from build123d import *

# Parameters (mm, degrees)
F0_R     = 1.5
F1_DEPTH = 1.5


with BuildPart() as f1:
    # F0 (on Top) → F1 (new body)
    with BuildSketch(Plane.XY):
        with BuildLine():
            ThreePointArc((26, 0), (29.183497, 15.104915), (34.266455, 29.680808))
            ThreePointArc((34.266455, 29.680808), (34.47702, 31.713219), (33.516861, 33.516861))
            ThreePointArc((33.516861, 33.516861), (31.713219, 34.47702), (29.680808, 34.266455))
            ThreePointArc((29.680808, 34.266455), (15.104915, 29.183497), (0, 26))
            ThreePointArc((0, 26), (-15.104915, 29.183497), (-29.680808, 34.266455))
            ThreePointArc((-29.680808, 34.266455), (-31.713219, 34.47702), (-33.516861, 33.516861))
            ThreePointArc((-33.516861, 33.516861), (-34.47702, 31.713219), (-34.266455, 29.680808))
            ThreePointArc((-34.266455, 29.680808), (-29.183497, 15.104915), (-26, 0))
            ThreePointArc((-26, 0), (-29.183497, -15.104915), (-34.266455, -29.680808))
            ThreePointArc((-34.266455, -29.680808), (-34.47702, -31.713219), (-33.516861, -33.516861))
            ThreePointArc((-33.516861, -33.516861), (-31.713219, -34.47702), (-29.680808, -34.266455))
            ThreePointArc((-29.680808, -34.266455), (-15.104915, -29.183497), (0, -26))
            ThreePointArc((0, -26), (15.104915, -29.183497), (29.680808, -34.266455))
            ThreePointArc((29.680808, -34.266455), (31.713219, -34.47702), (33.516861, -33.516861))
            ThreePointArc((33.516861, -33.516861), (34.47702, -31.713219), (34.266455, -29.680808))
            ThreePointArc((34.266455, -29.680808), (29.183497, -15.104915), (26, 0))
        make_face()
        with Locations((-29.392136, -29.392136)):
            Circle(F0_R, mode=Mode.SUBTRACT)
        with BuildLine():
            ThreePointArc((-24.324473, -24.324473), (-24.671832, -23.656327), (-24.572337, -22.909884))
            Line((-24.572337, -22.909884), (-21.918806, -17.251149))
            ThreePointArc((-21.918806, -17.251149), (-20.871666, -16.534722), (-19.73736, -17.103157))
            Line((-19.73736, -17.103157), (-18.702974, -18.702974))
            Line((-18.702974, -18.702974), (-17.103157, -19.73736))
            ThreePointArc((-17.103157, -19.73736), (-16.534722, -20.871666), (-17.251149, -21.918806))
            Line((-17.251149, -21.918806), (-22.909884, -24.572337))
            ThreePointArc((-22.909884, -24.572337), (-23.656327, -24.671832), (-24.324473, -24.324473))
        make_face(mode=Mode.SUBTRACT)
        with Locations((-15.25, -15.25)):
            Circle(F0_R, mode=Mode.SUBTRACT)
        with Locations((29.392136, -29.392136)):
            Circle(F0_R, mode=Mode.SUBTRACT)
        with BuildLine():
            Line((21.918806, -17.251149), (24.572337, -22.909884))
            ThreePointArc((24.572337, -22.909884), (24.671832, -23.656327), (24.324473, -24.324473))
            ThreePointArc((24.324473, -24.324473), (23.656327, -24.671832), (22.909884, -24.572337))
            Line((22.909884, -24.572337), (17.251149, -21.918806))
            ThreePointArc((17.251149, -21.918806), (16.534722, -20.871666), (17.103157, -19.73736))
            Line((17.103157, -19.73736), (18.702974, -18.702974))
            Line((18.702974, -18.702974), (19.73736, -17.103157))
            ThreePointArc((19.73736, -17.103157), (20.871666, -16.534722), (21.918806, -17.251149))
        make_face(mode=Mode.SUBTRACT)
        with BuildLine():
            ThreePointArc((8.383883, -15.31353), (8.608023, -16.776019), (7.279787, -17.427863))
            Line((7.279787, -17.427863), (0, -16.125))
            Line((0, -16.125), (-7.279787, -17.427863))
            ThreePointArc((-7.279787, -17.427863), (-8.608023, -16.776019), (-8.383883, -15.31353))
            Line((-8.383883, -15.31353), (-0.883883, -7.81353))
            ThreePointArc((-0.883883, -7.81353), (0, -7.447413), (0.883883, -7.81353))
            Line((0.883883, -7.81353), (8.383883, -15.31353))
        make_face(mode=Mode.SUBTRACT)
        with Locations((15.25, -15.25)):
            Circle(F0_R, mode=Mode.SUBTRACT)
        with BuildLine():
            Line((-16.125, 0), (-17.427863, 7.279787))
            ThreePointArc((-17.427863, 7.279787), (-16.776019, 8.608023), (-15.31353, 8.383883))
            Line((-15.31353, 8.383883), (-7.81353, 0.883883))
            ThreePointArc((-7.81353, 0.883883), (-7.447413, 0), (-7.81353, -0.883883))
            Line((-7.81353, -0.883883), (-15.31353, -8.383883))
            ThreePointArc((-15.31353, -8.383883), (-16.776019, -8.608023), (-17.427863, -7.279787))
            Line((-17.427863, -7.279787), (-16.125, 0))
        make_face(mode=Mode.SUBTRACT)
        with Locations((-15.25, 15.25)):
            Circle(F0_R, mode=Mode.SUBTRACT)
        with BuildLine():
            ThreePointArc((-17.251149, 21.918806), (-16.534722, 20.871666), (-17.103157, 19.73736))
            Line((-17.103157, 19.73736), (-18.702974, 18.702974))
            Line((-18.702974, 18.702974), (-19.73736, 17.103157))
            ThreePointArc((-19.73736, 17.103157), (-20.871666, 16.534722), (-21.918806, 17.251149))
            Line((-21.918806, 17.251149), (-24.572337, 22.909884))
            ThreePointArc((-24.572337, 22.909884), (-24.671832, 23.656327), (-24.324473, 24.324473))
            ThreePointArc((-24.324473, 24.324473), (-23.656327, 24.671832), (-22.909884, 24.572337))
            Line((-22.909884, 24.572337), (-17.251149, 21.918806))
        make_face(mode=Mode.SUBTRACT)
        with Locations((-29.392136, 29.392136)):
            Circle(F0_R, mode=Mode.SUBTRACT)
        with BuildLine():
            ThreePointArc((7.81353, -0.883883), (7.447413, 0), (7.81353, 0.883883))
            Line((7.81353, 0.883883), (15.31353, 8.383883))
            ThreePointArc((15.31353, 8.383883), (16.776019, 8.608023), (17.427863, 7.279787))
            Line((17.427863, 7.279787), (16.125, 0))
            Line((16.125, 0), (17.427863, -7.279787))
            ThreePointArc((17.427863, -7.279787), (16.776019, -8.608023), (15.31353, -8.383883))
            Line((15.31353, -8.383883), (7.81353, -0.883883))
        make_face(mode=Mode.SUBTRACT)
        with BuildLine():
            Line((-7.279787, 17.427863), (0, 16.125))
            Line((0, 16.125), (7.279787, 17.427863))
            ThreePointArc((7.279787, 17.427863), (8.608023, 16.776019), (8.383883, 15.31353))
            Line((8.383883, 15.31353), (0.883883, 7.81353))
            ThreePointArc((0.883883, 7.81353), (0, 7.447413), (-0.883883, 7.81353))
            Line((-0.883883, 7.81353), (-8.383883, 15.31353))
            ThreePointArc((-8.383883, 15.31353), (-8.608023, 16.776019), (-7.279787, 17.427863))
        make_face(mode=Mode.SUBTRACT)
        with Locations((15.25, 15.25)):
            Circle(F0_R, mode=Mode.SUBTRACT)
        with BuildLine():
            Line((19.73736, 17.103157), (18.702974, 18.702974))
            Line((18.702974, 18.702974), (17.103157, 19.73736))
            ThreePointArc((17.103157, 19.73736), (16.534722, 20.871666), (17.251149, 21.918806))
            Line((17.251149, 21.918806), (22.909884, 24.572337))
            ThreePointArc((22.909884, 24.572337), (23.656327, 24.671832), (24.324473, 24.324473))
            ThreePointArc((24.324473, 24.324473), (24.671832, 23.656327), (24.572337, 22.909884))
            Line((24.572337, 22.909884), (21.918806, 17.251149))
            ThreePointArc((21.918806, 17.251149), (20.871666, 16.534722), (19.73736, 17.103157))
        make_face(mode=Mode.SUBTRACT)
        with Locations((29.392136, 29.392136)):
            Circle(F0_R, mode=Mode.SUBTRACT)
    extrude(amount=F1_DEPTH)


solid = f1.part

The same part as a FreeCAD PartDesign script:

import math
import FreeCAD as App
import Part
import Sketcher

V = App.Vector

doc = App.newDocument("Part")
body = doc.addObject("PartDesign::Body", "Body")

# Sketch on XY plane
sketch1 = body.newObject("Sketcher::SketchObject", "Sketch")
sketch1.AttachmentSupport = (doc.getObject("XY_Plane"), [""])
sketch1.MapMode = "FlatFace"
sketch1.addGeometry([
    Part.ArcOfCircle(Part.Circle(V(145.605781, -17.320064, 0), V(0, 0, 1), 120.85333), math.radians(157.113408), math.radians(171.760298)),  # 0
    Part.ArcOfCircle(Part.Circle(V(31.041988, 31.041987, 0), V(0, 0, 1), 3.499999), math.radians(-22.886599), math.radians(45.000012)),  # 1
    Part.ArcOfCircle(Part.Circle(V(31.041987, 31.041988, 0), V(0, 0, 1), 3.499999), math.radians(44.999988), math.radians(112.886599)),  # 2
    Part.ArcOfCircle(Part.Circle(V(-17.320064, 145.605781, 0), V(0, 0, 1), 120.85333), math.radians(-81.760298), math.radians(-67.113408)),  # 3
    Part.ArcOfCircle(Part.Circle(V(17.320064, 145.605781, 0), V(0, 0, 1), 120.85333), math.radians(-112.886592), math.radians(-98.239702)),  # 4
    Part.ArcOfCircle(Part.Circle(V(-31.041987, 31.041988, 0), V(0, 0, 1), 3.499999), math.radians(67.113401), math.radians(135.000012)),  # 5
    Part.ArcOfCircle(Part.Circle(V(-31.041988, 31.041987, 0), V(0, 0, 1), 3.499999), math.radians(134.999988), math.radians(202.886599)),  # 6
    Part.ArcOfCircle(Part.Circle(V(-145.605781, -17.320064, 0), V(0, 0, 1), 120.85333), math.radians(8.239702), math.radians(22.886592)),  # 7
    Part.ArcOfCircle(Part.Circle(V(-145.605781, 17.320064, 0), V(0, 0, 1), 120.85333), math.radians(-22.886592), math.radians(-8.239702)),  # 8
    Part.ArcOfCircle(Part.Circle(V(-31.041988, -31.041987, 0), V(0, 0, 1), 3.499999), math.radians(157.113401), math.radians(225.000012)),  # 9
    Part.ArcOfCircle(Part.Circle(V(-31.041987, -31.041988, 0), V(0, 0, 1), 3.499999), math.radians(-135.000012), math.radians(-67.113401)),  # 10
    Part.ArcOfCircle(Part.Circle(V(17.320064, -145.605781, 0), V(0, 0, 1), 120.85333), math.radians(98.239702), math.radians(112.886592)),  # 11
    Part.ArcOfCircle(Part.Circle(V(-17.320064, -145.605781, 0), V(0, 0, 1), 120.85333), math.radians(67.113408), math.radians(81.760298)),  # 12
    Part.ArcOfCircle(Part.Circle(V(31.041987, -31.041988, 0), V(0, 0, 1), 3.499999), math.radians(-112.886599), math.radians(-44.999988)),  # 13
    Part.ArcOfCircle(Part.Circle(V(31.041988, -31.041987, 0), V(0, 0, 1), 3.499999), math.radians(-45.000012), math.radians(22.886599)),  # 14
    Part.ArcOfCircle(Part.Circle(V(145.605781, 17.320064, 0), V(0, 0, 1), 120.85333), math.radians(-171.760298), math.radians(-157.113408)),  # 15
    Part.Circle(V(-29.392136, -29.392136, 0), V(0, 0, 1), 1.5),  # 16
    Part.ArcOfCircle(Part.Circle(V(-23.440589, -23.44059, 0), V(0, 0, 1), 1.25), math.radians(-135.000029), math.radians(-64.8769)),  # 17
    Part.ArcOfCircle(Part.Circle(V(-23.44059, -23.440589, 0), V(0, 0, 1), 1.25), math.radians(154.8769), math.radians(225.000029)),  # 18
    Part.LineSegment(V(-24.572337, -22.909884, 0), V(-21.918806, -17.251149, 0)),  # 19
    Part.ArcOfCircle(Part.Circle(V(-20.787059, -17.781855, 0), V(0, 0, 1), 1.25), math.radians(32.885279), math.radians(154.87686)),  # 20
    Part.LineSegment(V(-19.73736, -17.103157, 0), V(-18.702974, -18.702974, 0)),  # 21
    Part.LineSegment(V(-18.702974, -18.702974, 0), V(-17.103157, -19.73736, 0)),  # 22
    Part.ArcOfCircle(Part.Circle(V(-17.781855, -20.787059, 0), V(0, 0, 1), 1.25), math.radians(-64.87686), math.radians(57.114721)),  # 23
    Part.LineSegment(V(-17.251149, -21.918806, 0), V(-22.909884, -24.572337, 0)),  # 24
    Part.Circle(V(-15.25, -15.25, 0), V(0, 0, 1), 1.5),  # 25
    Part.Circle(V(29.392136, -29.392136, 0), V(0, 0, 1), 1.5),  # 26
    Part.ArcOfCircle(Part.Circle(V(20.787059, -17.781855, 0), V(0, 0, 1), 1.25), math.radians(25.12314), math.radians(147.114721)),  # 27
    Part.LineSegment(V(21.918806, -17.251149, 0), V(24.572337, -22.909884, 0)),  # 28
    Part.ArcOfCircle(Part.Circle(V(23.44059, -23.440589, 0), V(0, 0, 1), 1.25), math.radians(-45.000029), math.radians(25.1231)),  # 29
    Part.ArcOfCircle(Part.Circle(V(23.440589, -23.44059, 0), V(0, 0, 1), 1.25), math.radians(-115.1231), math.radians(-44.999971)),  # 30
    Part.LineSegment(V(22.909884, -24.572337, 0), V(17.251149, -21.918806, 0)),  # 31
    Part.ArcOfCircle(Part.Circle(V(17.781855, -20.787059, 0), V(0, 0, 1), 1.25), math.radians(122.885279), math.radians(244.87686)),  # 32
    Part.LineSegment(V(17.103157, -19.73736, 0), V(18.702974, -18.702974, 0)),  # 33
    Part.LineSegment(V(18.702974, -18.702974, 0), V(19.73736, -17.103157, 0)),  # 34
    Part.LineSegment(V(0.883883, -7.81353, 0), V(8.383883, -15.31353, 0)),  # 35
    Part.ArcOfCircle(Part.Circle(V(7.5, -16.197414, 0), V(0, 0, 1), 1.25), math.radians(-100.14677), math.radians(45.000013)),  # 36
    Part.LineSegment(V(7.279787, -17.427863, 0), V(0, -16.125, 0)),  # 37
    Part.LineSegment(V(0, -16.125, 0), V(-7.279787, -17.427863, 0)),  # 38
    Part.ArcOfCircle(Part.Circle(V(-7.5, -16.197414, 0), V(0, 0, 1), 1.25), math.radians(134.999987), math.radians(280.14677)),  # 39
    Part.LineSegment(V(-8.383883, -15.31353, 0), V(-0.883883, -7.81353, 0)),  # 40
    Part.ArcOfCircle(Part.Circle(V(0, -8.697411, 0), V(0, 0, 1), 1.249998), math.radians(44.999925), math.radians(135.000075)),  # 41
    Part.Circle(V(15.25, -15.25, 0), V(0, 0, 1), 1.5),  # 42
    Part.LineSegment(V(-17.427863, -7.279787, 0), V(-16.125, 0, 0)),  # 43
    Part.LineSegment(V(-16.125, 0, 0), V(-17.427863, 7.279787, 0)),  # 44
    Part.ArcOfCircle(Part.Circle(V(-16.197414, 7.5, 0), V(0, 0, 1), 1.25), math.radians(44.999987), math.radians(190.14677)),  # 45
    Part.LineSegment(V(-15.31353, 8.383883, 0), V(-7.81353, 0.883883, 0)),  # 46
    Part.ArcOfCircle(Part.Circle(V(-8.697411, 0, 0), V(0, 0, 1), 1.249998), math.radians(-45.000075), math.radians(45.000075)),  # 47
    Part.LineSegment(V(-7.81353, -0.883883, 0), V(-15.31353, -8.383883, 0)),  # 48
    Part.ArcOfCircle(Part.Circle(V(-16.197414, -7.5, 0), V(0, 0, 1), 1.25), math.radians(169.85323), math.radians(315.000013)),  # 49
    Part.Circle(V(-15.25, 15.25, 0), V(0, 0, 1), 1.5),  # 50
    Part.LineSegment(V(-22.909884, 24.572337, 0), V(-17.251149, 21.918806, 0)),  # 51
    Part.ArcOfCircle(Part.Circle(V(-17.781855, 20.787059, 0), V(0, 0, 1), 1.25), math.radians(-57.114721), math.radians(64.87686)),  # 52
    Part.LineSegment(V(-17.103157, 19.73736, 0), V(-18.702974, 18.702974, 0)),  # 53
    Part.LineSegment(V(-18.702974, 18.702974, 0), V(-19.73736, 17.103157, 0)),  # 54
    Part.ArcOfCircle(Part.Circle(V(-20.787059, 17.781855, 0), V(0, 0, 1), 1.25), math.radians(-154.87686), math.radians(-32.885279)),  # 55
    Part.LineSegment(V(-21.918806, 17.251149, 0), V(-24.572337, 22.909884, 0)),  # 56
    Part.ArcOfCircle(Part.Circle(V(-23.44059, 23.440589, 0), V(0, 0, 1), 1.25), math.radians(134.999971), math.radians(205.1231)),  # 57
    Part.ArcOfCircle(Part.Circle(V(-23.440589, 23.44059, 0), V(0, 0, 1), 1.25), math.radians(64.8769), math.radians(135.000029)),  # 58
    Part.Circle(V(-29.392136, 29.392136, 0), V(0, 0, 1), 1.5),  # 59
    Part.LineSegment(V(15.31353, -8.383883, 0), V(7.81353, -0.883883, 0)),  # 60
    Part.ArcOfCircle(Part.Circle(V(8.697411, 0, 0), V(0, 0, 1), 1.249998), math.radians(134.999925), math.radians(225.000075)),  # 61
    Part.LineSegment(V(7.81353, 0.883883, 0), V(15.31353, 8.383883, 0)),  # 62
    Part.ArcOfCircle(Part.Circle(V(16.197414, 7.5, 0), V(0, 0, 1), 1.25), math.radians(-10.14677), math.radians(135.000013)),  # 63
    Part.LineSegment(V(17.427863, 7.279787, 0), V(16.125, 0, 0)),  # 64
    Part.LineSegment(V(16.125, 0, 0), V(17.427863, -7.279787, 0)),  # 65
    Part.ArcOfCircle(Part.Circle(V(16.197414, -7.5, 0), V(0, 0, 1), 1.25), math.radians(-135.000013), math.radians(10.14677)),  # 66
    Part.ArcOfCircle(Part.Circle(V(-7.5, 16.197414, 0), V(0, 0, 1), 1.25), math.radians(79.85323), math.radians(225.000013)),  # 67
    Part.LineSegment(V(-7.279787, 17.427863, 0), V(0, 16.125, 0)),  # 68
    Part.LineSegment(V(0, 16.125, 0), V(7.279787, 17.427863, 0)),  # 69
    Part.ArcOfCircle(Part.Circle(V(7.5, 16.197414, 0), V(0, 0, 1), 1.25), math.radians(-45.000013), math.radians(100.14677)),  # 70
    Part.LineSegment(V(8.383883, 15.31353, 0), V(0.883883, 7.81353, 0)),  # 71
    Part.ArcOfCircle(Part.Circle(V(0, 8.697411, 0), V(0, 0, 1), 1.249998), math.radians(-135.000075), math.radians(-44.999925)),  # 72
    Part.LineSegment(V(-0.883883, 7.81353, 0), V(-8.383883, 15.31353, 0)),  # 73
    Part.Circle(V(15.25, 15.25, 0), V(0, 0, 1), 1.5),  # 74
    Part.ArcOfCircle(Part.Circle(V(20.787059, 17.781855, 0), V(0, 0, 1), 1.25), math.radians(-147.114721), math.radians(-25.12314)),  # 75
    Part.LineSegment(V(19.73736, 17.103157, 0), V(18.702974, 18.702974, 0)),  # 76
    Part.LineSegment(V(18.702974, 18.702974, 0), V(17.103157, 19.73736, 0)),  # 77
    Part.ArcOfCircle(Part.Circle(V(17.781855, 20.787059, 0), V(0, 0, 1), 1.25), math.radians(115.12314), math.radians(237.114721)),  # 78
    Part.LineSegment(V(17.251149, 21.918806, 0), V(22.909884, 24.572337, 0)),  # 79
    Part.ArcOfCircle(Part.Circle(V(23.440589, 23.44059, 0), V(0, 0, 1), 1.25), math.radians(44.999971), math.radians(115.1231)),  # 80
    Part.ArcOfCircle(Part.Circle(V(23.44059, 23.440589, 0), V(0, 0, 1), 1.25), math.radians(-25.1231), math.radians(45.000029)),  # 81
    Part.LineSegment(V(24.572337, 22.909884, 0), V(21.918806, 17.251149, 0)),  # 82
    Part.Circle(V(29.392136, 29.392136, 0), V(0, 0, 1), 1.5),  # 83
], False)
sketch1.addConstraint([
    Sketcher.Constraint("Tangent", 0, 1, 1, 1),
    Sketcher.Constraint("Tangent", 1, 2, 2, 1),
    Sketcher.Constraint("Tangent", 2, 2, 3, 2),
    Sketcher.Constraint("Coincident", 3, 1, 4, 2),
    Sketcher.Constraint("Tangent", 4, 1, 5, 1),
    Sketcher.Constraint("Tangent", 5, 2, 6, 1),
    Sketcher.Constraint("Tangent", 6, 2, 7, 2),
    Sketcher.Constraint("Coincident", 7, 1, 8, 2),
    Sketcher.Constraint("Tangent", 8, 1, 9, 1),
    Sketcher.Constraint("Tangent", 9, 2, 10, 1),
    Sketcher.Constraint("Tangent", 10, 2, 11, 2),
    Sketcher.Constraint("Coincident", 11, 1, 12, 2),
    Sketcher.Constraint("Tangent", 12, 1, 13, 1),
    Sketcher.Constraint("Tangent", 13, 2, 14, 1),
    Sketcher.Constraint("Tangent", 14, 2, 15, 2),
    Sketcher.Constraint("Coincident", 15, 1, 0, 2),
    Sketcher.Constraint("Tangent", 17, 1, 18, 2),
    Sketcher.Constraint("Tangent", 18, 1, 19, 1),
    Sketcher.Constraint("Tangent", 19, 2, 20, 2),
    Sketcher.Constraint("Tangent", 20, 1, 21, 1),
    Sketcher.Constraint("Coincident", 21, 2, 22, 1),
    Sketcher.Constraint("Tangent", 22, 2, 23, 2),
    Sketcher.Constraint("Tangent", 23, 1, 24, 1),
    Sketcher.Constraint("Tangent", 24, 2, 17, 2),
    Sketcher.Constraint("Tangent", 27, 1, 28, 1),
    Sketcher.Constraint("Tangent", 28, 2, 29, 2),
    Sketcher.Constraint("Tangent", 29, 1, 30, 2),
    Sketcher.Constraint("Tangent", 30, 1, 31, 1),
    Sketcher.Constraint("Tangent", 31, 2, 32, 2),
    Sketcher.Constraint("Tangent", 32, 1, 33, 1),
    Sketcher.Constraint("Coincident", 33, 2, 34, 1),
    Sketcher.Constraint("Tangent", 34, 2, 27, 2),
    Sketcher.Constraint("Tangent", 35, 2, 36, 2),
    Sketcher.Constraint("Tangent", 36, 1, 37, 1),
    Sketcher.Constraint("Coincident", 37, 2, 38, 1),
    Sketcher.Constraint("Tangent", 38, 2, 39, 2),
    Sketcher.Constraint("Tangent", 39, 1, 40, 1),
    Sketcher.Constraint("Tangent", 40, 2, 41, 2),
    Sketcher.Constraint("Tangent", 41, 1, 35, 1),
    Sketcher.Constraint("Coincident", 43, 2, 44, 1),
    Sketcher.Constraint("Tangent", 44, 2, 45, 2),
    Sketcher.Constraint("Tangent", 45, 1, 46, 1),
    Sketcher.Constraint("Tangent", 46, 2, 47, 2),
    Sketcher.Constraint("Tangent", 47, 1, 48, 1),
    Sketcher.Constraint("Tangent", 48, 2, 49, 2),
    Sketcher.Constraint("Tangent", 49, 1, 43, 1),
    Sketcher.Constraint("Tangent", 51, 2, 52, 2),
    Sketcher.Constraint("Tangent", 52, 1, 53, 1),
    Sketcher.Constraint("Coincident", 53, 2, 54, 1),
    Sketcher.Constraint("Tangent", 54, 2, 55, 2),
    Sketcher.Constraint("Tangent", 55, 1, 56, 1),
    Sketcher.Constraint("Tangent", 56, 2, 57, 2),
    Sketcher.Constraint("Tangent", 57, 1, 58, 2),
    Sketcher.Constraint("Tangent", 58, 1, 51, 1),
    Sketcher.Constraint("Tangent", 60, 2, 61, 2),
    Sketcher.Constraint("Tangent", 61, 1, 62, 1),
    Sketcher.Constraint("Tangent", 62, 2, 63, 2),
    Sketcher.Constraint("Tangent", 63, 1, 64, 1),
    Sketcher.Constraint("Coincident", 64, 2, 65, 1),
    Sketcher.Constraint("Tangent", 65, 2, 66, 2),
    Sketcher.Constraint("Tangent", 66, 1, 60, 1),
    Sketcher.Constraint("Tangent", 67, 1, 68, 1),
    Sketcher.Constraint("Coincident", 68, 2, 69, 1),
    Sketcher.Constraint("Tangent", 69, 2, 70, 2),
    Sketcher.Constraint("Tangent", 70, 1, 71, 1),
    Sketcher.Constraint("Tangent", 71, 2, 72, 2),
    Sketcher.Constraint("Tangent", 72, 1, 73, 1),
    Sketcher.Constraint("Tangent", 73, 2, 67, 2),
    Sketcher.Constraint("Tangent", 75, 1, 76, 1),
    Sketcher.Constraint("Coincident", 76, 2, 77, 1),
    Sketcher.Constraint("Tangent", 77, 2, 78, 2),
    Sketcher.Constraint("Tangent", 78, 1, 79, 1),
    Sketcher.Constraint("Tangent", 79, 2, 80, 2),
    Sketcher.Constraint("Tangent", 80, 1, 81, 2),
    Sketcher.Constraint("Tangent", 81, 1, 82, 1),
    Sketcher.Constraint("Tangent", 82, 2, 75, 2),
    Sketcher.Constraint("Equal", 1, 2),
    Sketcher.Constraint("Equal", 0, 3),
    Sketcher.Constraint("Equal", 3, 4),
    Sketcher.Constraint("Equal", 2, 5),
    Sketcher.Constraint("Equal", 5, 6),
    Sketcher.Constraint("Equal", 4, 7),
    Sketcher.Constraint("Equal", 7, 8),
    Sketcher.Constraint("Equal", 6, 9),
    Sketcher.Constraint("Equal", 9, 10),
    Sketcher.Constraint("Equal", 8, 11),
    Sketcher.Constraint("Equal", 11, 12),
    Sketcher.Constraint("Equal", 10, 13),
    Sketcher.Constraint("Equal", 13, 14),
    Sketcher.Constraint("Equal", 12, 15),
    Sketcher.Constraint("Equal", 17, 18),
    Sketcher.Constraint("Equal", 18, 20),
    Sketcher.Constraint("Equal", 20, 23),
    Sketcher.Constraint("Equal", 16, 25),
    Sketcher.Constraint("Equal", 25, 26),
    Sketcher.Constraint("Equal", 23, 27),
    Sketcher.Constraint("Equal", 27, 29),
    Sketcher.Constraint("Equal", 29, 30),
    Sketcher.Constraint("Equal", 30, 32),
    Sketcher.Constraint("Equal", 32, 36),
    Sketcher.Constraint("Equal", 36, 39),
    Sketcher.Constraint("Equal", 30, 41),
    Sketcher.Constraint("Equal", 26, 42),
    Sketcher.Constraint("Equal", 39, 45),
    Sketcher.Constraint("Equal", 41, 47),
    Sketcher.Constraint("Equal", 45, 49),
    Sketcher.Constraint("Equal", 42, 50),
    Sketcher.Constraint("Equal", 49, 52),
    Sketcher.Constraint("Equal", 52, 55),
    Sketcher.Constraint("Equal", 55, 57),
    Sketcher.Constraint("Equal", 57, 58),
    Sketcher.Constraint("Equal", 50, 59),
    Sketcher.Constraint("Equal", 58, 61),
    Sketcher.Constraint("Equal", 58, 63),
    Sketcher.Constraint("Equal", 63, 66),
    Sketcher.Constraint("Equal", 66, 67),
    Sketcher.Constraint("Equal", 67, 70),
    Sketcher.Constraint("Equal", 61, 72),
    Sketcher.Constraint("Equal", 59, 74),
    Sketcher.Constraint("Equal", 70, 75),
    Sketcher.Constraint("Equal", 75, 78),
    Sketcher.Constraint("Equal", 78, 80),
    Sketcher.Constraint("Equal", 80, 81),
    Sketcher.Constraint("Equal", 74, 83),
    Sketcher.Constraint("Symmetric", 0, 3, 8, 3, -1, 1),
    Sketcher.Constraint("Symmetric", 3, 3, 11, 3, -1, 1),
    Sketcher.Constraint("Symmetric", 4, 3, 12, 3, -1, 1),
    Sketcher.Constraint("Symmetric", 7, 3, 15, 3, -1, 1),
    Sketcher.Constraint("Symmetric", 42, 3, 50, 3, -1, 1),
    Sketcher.Constraint("Symmetric", 32, 3, 52, 3, -1, 1),
    Sketcher.Constraint("Symmetric", 27, 3, 55, 3, -1, 1),
    Sketcher.Constraint("Symmetric", 29, 3, 57, 3, -1, 1),
    Sketcher.Constraint("Symmetric", 26, 3, 59, 3, -1, 1),
    Sketcher.Constraint("Symmetric", 47, 3, 61, 3, -1, 1),
    Sketcher.Constraint("Symmetric", 49, 3, 63, 3, -1, 1),
    Sketcher.Constraint("Symmetric", 45, 3, 66, 3, -1, 1),
    Sketcher.Constraint("Symmetric", 36, 3, 67, 3, -1, 1),
    Sketcher.Constraint("Symmetric", 39, 3, 70, 3, -1, 1),
    Sketcher.Constraint("Symmetric", 41, 3, 72, 3, -1, 1),
    Sketcher.Constraint("Symmetric", 25, 3, 74, 3, -1, 1),
    Sketcher.Constraint("Symmetric", 20, 3, 75, 3, -1, 1),
    Sketcher.Constraint("Symmetric", 23, 3, 78, 3, -1, 1),
    Sketcher.Constraint("Symmetric", 17, 3, 80, 3, -1, 1),
    Sketcher.Constraint("Symmetric", 16, 3, 83, 3, -1, 1),
    Sketcher.Constraint("Symmetric", 33, 2, 53, 2, -1, 1),
    Sketcher.Constraint("Symmetric", 43, 2, 64, 2, -1, 1),
    Sketcher.Constraint("Symmetric", 37, 2, 68, 2, -1, 1),
    Sketcher.Constraint("Symmetric", 21, 2, 76, 2, -1, 1),
    Sketcher.Constraint("Symmetric", 3, 3, 4, 3, -2),
    Sketcher.Constraint("Symmetric", 0, 3, 7, 3, -2),
    Sketcher.Constraint("Symmetric", 16, 3, 26, 3, -2),
    Sketcher.Constraint("Symmetric", 20, 3, 27, 3, -2),
    Sketcher.Constraint("Symmetric", 17, 3, 29, 3, -2),
    Sketcher.Constraint("Symmetric", 23, 3, 32, 3, -2),
    Sketcher.Constraint("Symmetric", 36, 3, 39, 3, -2),
    Sketcher.Constraint("Symmetric", 25, 3, 42, 3, -2),
    Sketcher.Constraint("Symmetric", 45, 3, 63, 3, -2),
    Sketcher.Constraint("Symmetric", 21, 2, 33, 2, -2),
    Sketcher.Constraint("PointOnObject", 41, 3, -2),
    Sketcher.Constraint("PointOnObject", 47, 3, -1),
    Sketcher.Constraint("PointOnObject", 37, 2, -2),
    Sketcher.Constraint("PointOnObject", 43, 2, -1),
    Sketcher.Constraint("Perpendicular", 24, 28),
    Sketcher.Constraint("Perpendicular", 21, 33),
    Sketcher.Constraint("Perpendicular", 35, 40),
    Sketcher.Constraint("Perpendicular", 37, 43),
    Sketcher.Constraint("Perpendicular", 40, 46),
    Sketcher.Constraint("Horizontal", 1, 2, 5, 2),
    Sketcher.Constraint("Horizontal", 9, 2, 13, 2),
    Sketcher.Constraint("Horizontal", 17, 1, 29, 1),
    Sketcher.Constraint("Horizontal", 57, 1, 80, 1),
    Sketcher.Constraint("Vertical", 5, 2, 9, 2),
    Sketcher.Constraint("Vertical", 17, 1, 57, 1),
    Sketcher.Constraint("Equal", 21, 22),
    Sketcher.Constraint("Equal", 38, 43),
    Sketcher.Constraint("Diameter", 16, 3.0),
    Sketcher.Constraint("Radius", 1, 3.499999),
    Sketcher.Constraint("Radius", 17, 1.25),
    Sketcher.Constraint("DistanceY", -1, 1, 3, 1, 26.0),
    Sketcher.Constraint("DistanceX", 7, 1, -1, 1, 26.0),
    Sketcher.Constraint("DistanceX", -1, 1, 36, 3, 7.5),
    Sketcher.Constraint("Distance", 19, 6.250001),
    Sketcher.Constraint("DistanceX", 25, 3, -1, 1, 15.25),
    Sketcher.Constraint("DistanceY", 25, 3, -1, 1, 15.25),
    Sketcher.Constraint("Radius", 0, 120.85333),
    Sketcher.Constraint("DistanceY", 37, 2, -1, 1, 16.125),
    Sketcher.Constraint("DistanceX", 43, 2, -1, 1, 16.125),
    Sketcher.Constraint("Distance", 21, 1.90509),
    Sketcher.Constraint("DistanceX", -1, 1, 0, 3, 145.605781),
    Sketcher.Constraint("DistanceX", -1, 1, 1, 3, 31.041988),
    Sketcher.Constraint("DistanceX", 17, 3, -1, 1, 23.440589),
    Sketcher.Constraint("DistanceY", 17, 3, -1, 1, 23.44059),
    Sketcher.Constraint("DistanceX", 20, 3, -1, 1, 20.787059),
    Sketcher.Constraint("DistanceY", 41, 3, -1, 1, 8.697411),
    Sketcher.Constraint("DistanceX", -1, 1, 1, 2, 33.516861),
    Sketcher.Constraint("DistanceX", 16, 3, -1, 1, 29.392136),
    Sketcher.Constraint("DistanceY", 16, 3, -1, 1, 29.392136),
    Sketcher.Constraint("DistanceX", 17, 1, -1, 1, 24.324473),
])
pad1 = body.newObject("PartDesign::Pad", "Pad")
pad1.Profile = sketch1
pad1.Length = 1.5

doc.recompute()
